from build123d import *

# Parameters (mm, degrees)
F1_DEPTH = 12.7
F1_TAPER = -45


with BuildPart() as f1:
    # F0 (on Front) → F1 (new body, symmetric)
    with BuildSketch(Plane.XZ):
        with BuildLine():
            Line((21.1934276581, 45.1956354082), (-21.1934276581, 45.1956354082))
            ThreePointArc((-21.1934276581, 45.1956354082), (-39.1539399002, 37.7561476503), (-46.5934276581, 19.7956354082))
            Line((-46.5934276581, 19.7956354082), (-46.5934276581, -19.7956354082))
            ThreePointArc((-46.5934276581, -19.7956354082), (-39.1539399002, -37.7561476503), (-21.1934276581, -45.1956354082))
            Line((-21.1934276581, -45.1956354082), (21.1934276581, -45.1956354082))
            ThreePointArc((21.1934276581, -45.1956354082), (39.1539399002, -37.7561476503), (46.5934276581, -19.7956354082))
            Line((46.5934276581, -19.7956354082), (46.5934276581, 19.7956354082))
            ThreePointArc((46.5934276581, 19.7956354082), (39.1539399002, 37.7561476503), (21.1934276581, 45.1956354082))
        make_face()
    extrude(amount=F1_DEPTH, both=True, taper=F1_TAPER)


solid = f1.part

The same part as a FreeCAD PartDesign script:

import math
import FreeCAD as App
import Part
import Sketcher
from FreeCAD import Vector
Q = App.Units.Quantity

doc = App.newDocument("Part")
body = doc.addObject("PartDesign::Body", "Body")

sketch1 = body.newObject("Sketcher::SketchObject", "Sketch")
sketch1.AttachmentSupport = (doc.getObject("XZ_Plane"), [""])
sketch1.MapMode = "FlatFace"
sketch1.addGeometry(Part.LineSegment(Vector(21, 45, 0), Vector(-21, 45, 0)), False)
sketch1.addGeometry(Part.ArcOfCircle(Part.Circle(Vector(-21, 20, 0), Vector(0, 0, 1), 25), math.radians(90), math.radians(180)), False)
sketch1.addGeometry(Part.LineSegment(Vector(-47, 20, 0), Vector(-47, -20, 0)), False)
sketch1.addGeometry(Part.ArcOfCircle(Part.Circle(Vector(-21, -20, 0), Vector(0, 0, 1), 25), math.radians(180), math.radians(270)), False)
sketch1.addGeometry(Part.LineSegment(Vector(-21, -45, 0), Vector(21, -45, 0)), False)
sketch1.addGeometry(Part.ArcOfCircle(Part.Circle(Vector(21, -20, 0), Vector(0, 0, 1), 25), math.radians(-90), math.radians(0)), False)
sketch1.addGeometry(Part.LineSegment(Vector(47, -20, 0), Vector(47, 20, 0)), False)
sketch1.addGeometry(Part.ArcOfCircle(Part.Circle(Vector(21, 20, 0), Vector(0, 0, 1), 25), math.radians(0), math.radians(90)), False)
sketch1.addConstraint(Sketcher.Constraint("Tangent", 0, 2, 1, 1))
sketch1.addConstraint(Sketcher.Constraint("Tangent", 1, 2, 2, 1))
sketch1.addConstraint(Sketcher.Constraint("Tangent", 2, 2, 3, 1))
sketch1.addConstraint(Sketcher.Constraint("Tangent", 3, 2, 4, 1))
sketch1.addConstraint(Sketcher.Constraint("Tangent", 4, 2, 5, 1))
sketch1.addConstraint(Sketcher.Constraint("Tangent", 5, 2, 6, 1))
sketch1.addConstraint(Sketcher.Constraint("Tangent", 6, 2, 7, 1))
sketch1.addConstraint(Sketcher.Constraint("Tangent", 7, 2, 0, 1))
sketch1.addConstraint(Sketcher.Constraint("Horizontal", 0))
sketch1.addConstraint(Sketcher.Constraint("Vertical", 2))
sketch1.addConstraint(Sketcher.Constraint("Horizontal", 4))
sketch1.addConstraint(Sketcher.Constraint("Vertical", 6))
sketch1.addConstraint(Sketcher.Constraint("Equal", 1, 3))
sketch1.addConstraint(Sketcher.Constraint("Equal", 3, 5))
sketch1.addConstraint(Sketcher.Constraint("Equal", 5, 7))
sketch1.addConstraint(Sketcher.Constraint("Symmetric", 1, 3, 5, 3, -1, 1))
sketch1.addConstraint(Sketcher.Constraint("Radius", 1, Q("1 in")))
sketch1.addConstraint(Sketcher.Constraint("DistanceY", 2, 2, 2, 1, Q("39.591271 mm")))
sketch1.addConstraint(Sketcher.Constraint("DistanceX", 0, 2, 0, 1, Q("42.386855 mm")))
pad1 = body.newObject("PartDesign::Pad", "Pad")
pad1.Profile = sketch1
pad1.Length = Q("1 in")
pad1.Midplane = True
pad1.TaperAngle = 45

doc.recompute()
